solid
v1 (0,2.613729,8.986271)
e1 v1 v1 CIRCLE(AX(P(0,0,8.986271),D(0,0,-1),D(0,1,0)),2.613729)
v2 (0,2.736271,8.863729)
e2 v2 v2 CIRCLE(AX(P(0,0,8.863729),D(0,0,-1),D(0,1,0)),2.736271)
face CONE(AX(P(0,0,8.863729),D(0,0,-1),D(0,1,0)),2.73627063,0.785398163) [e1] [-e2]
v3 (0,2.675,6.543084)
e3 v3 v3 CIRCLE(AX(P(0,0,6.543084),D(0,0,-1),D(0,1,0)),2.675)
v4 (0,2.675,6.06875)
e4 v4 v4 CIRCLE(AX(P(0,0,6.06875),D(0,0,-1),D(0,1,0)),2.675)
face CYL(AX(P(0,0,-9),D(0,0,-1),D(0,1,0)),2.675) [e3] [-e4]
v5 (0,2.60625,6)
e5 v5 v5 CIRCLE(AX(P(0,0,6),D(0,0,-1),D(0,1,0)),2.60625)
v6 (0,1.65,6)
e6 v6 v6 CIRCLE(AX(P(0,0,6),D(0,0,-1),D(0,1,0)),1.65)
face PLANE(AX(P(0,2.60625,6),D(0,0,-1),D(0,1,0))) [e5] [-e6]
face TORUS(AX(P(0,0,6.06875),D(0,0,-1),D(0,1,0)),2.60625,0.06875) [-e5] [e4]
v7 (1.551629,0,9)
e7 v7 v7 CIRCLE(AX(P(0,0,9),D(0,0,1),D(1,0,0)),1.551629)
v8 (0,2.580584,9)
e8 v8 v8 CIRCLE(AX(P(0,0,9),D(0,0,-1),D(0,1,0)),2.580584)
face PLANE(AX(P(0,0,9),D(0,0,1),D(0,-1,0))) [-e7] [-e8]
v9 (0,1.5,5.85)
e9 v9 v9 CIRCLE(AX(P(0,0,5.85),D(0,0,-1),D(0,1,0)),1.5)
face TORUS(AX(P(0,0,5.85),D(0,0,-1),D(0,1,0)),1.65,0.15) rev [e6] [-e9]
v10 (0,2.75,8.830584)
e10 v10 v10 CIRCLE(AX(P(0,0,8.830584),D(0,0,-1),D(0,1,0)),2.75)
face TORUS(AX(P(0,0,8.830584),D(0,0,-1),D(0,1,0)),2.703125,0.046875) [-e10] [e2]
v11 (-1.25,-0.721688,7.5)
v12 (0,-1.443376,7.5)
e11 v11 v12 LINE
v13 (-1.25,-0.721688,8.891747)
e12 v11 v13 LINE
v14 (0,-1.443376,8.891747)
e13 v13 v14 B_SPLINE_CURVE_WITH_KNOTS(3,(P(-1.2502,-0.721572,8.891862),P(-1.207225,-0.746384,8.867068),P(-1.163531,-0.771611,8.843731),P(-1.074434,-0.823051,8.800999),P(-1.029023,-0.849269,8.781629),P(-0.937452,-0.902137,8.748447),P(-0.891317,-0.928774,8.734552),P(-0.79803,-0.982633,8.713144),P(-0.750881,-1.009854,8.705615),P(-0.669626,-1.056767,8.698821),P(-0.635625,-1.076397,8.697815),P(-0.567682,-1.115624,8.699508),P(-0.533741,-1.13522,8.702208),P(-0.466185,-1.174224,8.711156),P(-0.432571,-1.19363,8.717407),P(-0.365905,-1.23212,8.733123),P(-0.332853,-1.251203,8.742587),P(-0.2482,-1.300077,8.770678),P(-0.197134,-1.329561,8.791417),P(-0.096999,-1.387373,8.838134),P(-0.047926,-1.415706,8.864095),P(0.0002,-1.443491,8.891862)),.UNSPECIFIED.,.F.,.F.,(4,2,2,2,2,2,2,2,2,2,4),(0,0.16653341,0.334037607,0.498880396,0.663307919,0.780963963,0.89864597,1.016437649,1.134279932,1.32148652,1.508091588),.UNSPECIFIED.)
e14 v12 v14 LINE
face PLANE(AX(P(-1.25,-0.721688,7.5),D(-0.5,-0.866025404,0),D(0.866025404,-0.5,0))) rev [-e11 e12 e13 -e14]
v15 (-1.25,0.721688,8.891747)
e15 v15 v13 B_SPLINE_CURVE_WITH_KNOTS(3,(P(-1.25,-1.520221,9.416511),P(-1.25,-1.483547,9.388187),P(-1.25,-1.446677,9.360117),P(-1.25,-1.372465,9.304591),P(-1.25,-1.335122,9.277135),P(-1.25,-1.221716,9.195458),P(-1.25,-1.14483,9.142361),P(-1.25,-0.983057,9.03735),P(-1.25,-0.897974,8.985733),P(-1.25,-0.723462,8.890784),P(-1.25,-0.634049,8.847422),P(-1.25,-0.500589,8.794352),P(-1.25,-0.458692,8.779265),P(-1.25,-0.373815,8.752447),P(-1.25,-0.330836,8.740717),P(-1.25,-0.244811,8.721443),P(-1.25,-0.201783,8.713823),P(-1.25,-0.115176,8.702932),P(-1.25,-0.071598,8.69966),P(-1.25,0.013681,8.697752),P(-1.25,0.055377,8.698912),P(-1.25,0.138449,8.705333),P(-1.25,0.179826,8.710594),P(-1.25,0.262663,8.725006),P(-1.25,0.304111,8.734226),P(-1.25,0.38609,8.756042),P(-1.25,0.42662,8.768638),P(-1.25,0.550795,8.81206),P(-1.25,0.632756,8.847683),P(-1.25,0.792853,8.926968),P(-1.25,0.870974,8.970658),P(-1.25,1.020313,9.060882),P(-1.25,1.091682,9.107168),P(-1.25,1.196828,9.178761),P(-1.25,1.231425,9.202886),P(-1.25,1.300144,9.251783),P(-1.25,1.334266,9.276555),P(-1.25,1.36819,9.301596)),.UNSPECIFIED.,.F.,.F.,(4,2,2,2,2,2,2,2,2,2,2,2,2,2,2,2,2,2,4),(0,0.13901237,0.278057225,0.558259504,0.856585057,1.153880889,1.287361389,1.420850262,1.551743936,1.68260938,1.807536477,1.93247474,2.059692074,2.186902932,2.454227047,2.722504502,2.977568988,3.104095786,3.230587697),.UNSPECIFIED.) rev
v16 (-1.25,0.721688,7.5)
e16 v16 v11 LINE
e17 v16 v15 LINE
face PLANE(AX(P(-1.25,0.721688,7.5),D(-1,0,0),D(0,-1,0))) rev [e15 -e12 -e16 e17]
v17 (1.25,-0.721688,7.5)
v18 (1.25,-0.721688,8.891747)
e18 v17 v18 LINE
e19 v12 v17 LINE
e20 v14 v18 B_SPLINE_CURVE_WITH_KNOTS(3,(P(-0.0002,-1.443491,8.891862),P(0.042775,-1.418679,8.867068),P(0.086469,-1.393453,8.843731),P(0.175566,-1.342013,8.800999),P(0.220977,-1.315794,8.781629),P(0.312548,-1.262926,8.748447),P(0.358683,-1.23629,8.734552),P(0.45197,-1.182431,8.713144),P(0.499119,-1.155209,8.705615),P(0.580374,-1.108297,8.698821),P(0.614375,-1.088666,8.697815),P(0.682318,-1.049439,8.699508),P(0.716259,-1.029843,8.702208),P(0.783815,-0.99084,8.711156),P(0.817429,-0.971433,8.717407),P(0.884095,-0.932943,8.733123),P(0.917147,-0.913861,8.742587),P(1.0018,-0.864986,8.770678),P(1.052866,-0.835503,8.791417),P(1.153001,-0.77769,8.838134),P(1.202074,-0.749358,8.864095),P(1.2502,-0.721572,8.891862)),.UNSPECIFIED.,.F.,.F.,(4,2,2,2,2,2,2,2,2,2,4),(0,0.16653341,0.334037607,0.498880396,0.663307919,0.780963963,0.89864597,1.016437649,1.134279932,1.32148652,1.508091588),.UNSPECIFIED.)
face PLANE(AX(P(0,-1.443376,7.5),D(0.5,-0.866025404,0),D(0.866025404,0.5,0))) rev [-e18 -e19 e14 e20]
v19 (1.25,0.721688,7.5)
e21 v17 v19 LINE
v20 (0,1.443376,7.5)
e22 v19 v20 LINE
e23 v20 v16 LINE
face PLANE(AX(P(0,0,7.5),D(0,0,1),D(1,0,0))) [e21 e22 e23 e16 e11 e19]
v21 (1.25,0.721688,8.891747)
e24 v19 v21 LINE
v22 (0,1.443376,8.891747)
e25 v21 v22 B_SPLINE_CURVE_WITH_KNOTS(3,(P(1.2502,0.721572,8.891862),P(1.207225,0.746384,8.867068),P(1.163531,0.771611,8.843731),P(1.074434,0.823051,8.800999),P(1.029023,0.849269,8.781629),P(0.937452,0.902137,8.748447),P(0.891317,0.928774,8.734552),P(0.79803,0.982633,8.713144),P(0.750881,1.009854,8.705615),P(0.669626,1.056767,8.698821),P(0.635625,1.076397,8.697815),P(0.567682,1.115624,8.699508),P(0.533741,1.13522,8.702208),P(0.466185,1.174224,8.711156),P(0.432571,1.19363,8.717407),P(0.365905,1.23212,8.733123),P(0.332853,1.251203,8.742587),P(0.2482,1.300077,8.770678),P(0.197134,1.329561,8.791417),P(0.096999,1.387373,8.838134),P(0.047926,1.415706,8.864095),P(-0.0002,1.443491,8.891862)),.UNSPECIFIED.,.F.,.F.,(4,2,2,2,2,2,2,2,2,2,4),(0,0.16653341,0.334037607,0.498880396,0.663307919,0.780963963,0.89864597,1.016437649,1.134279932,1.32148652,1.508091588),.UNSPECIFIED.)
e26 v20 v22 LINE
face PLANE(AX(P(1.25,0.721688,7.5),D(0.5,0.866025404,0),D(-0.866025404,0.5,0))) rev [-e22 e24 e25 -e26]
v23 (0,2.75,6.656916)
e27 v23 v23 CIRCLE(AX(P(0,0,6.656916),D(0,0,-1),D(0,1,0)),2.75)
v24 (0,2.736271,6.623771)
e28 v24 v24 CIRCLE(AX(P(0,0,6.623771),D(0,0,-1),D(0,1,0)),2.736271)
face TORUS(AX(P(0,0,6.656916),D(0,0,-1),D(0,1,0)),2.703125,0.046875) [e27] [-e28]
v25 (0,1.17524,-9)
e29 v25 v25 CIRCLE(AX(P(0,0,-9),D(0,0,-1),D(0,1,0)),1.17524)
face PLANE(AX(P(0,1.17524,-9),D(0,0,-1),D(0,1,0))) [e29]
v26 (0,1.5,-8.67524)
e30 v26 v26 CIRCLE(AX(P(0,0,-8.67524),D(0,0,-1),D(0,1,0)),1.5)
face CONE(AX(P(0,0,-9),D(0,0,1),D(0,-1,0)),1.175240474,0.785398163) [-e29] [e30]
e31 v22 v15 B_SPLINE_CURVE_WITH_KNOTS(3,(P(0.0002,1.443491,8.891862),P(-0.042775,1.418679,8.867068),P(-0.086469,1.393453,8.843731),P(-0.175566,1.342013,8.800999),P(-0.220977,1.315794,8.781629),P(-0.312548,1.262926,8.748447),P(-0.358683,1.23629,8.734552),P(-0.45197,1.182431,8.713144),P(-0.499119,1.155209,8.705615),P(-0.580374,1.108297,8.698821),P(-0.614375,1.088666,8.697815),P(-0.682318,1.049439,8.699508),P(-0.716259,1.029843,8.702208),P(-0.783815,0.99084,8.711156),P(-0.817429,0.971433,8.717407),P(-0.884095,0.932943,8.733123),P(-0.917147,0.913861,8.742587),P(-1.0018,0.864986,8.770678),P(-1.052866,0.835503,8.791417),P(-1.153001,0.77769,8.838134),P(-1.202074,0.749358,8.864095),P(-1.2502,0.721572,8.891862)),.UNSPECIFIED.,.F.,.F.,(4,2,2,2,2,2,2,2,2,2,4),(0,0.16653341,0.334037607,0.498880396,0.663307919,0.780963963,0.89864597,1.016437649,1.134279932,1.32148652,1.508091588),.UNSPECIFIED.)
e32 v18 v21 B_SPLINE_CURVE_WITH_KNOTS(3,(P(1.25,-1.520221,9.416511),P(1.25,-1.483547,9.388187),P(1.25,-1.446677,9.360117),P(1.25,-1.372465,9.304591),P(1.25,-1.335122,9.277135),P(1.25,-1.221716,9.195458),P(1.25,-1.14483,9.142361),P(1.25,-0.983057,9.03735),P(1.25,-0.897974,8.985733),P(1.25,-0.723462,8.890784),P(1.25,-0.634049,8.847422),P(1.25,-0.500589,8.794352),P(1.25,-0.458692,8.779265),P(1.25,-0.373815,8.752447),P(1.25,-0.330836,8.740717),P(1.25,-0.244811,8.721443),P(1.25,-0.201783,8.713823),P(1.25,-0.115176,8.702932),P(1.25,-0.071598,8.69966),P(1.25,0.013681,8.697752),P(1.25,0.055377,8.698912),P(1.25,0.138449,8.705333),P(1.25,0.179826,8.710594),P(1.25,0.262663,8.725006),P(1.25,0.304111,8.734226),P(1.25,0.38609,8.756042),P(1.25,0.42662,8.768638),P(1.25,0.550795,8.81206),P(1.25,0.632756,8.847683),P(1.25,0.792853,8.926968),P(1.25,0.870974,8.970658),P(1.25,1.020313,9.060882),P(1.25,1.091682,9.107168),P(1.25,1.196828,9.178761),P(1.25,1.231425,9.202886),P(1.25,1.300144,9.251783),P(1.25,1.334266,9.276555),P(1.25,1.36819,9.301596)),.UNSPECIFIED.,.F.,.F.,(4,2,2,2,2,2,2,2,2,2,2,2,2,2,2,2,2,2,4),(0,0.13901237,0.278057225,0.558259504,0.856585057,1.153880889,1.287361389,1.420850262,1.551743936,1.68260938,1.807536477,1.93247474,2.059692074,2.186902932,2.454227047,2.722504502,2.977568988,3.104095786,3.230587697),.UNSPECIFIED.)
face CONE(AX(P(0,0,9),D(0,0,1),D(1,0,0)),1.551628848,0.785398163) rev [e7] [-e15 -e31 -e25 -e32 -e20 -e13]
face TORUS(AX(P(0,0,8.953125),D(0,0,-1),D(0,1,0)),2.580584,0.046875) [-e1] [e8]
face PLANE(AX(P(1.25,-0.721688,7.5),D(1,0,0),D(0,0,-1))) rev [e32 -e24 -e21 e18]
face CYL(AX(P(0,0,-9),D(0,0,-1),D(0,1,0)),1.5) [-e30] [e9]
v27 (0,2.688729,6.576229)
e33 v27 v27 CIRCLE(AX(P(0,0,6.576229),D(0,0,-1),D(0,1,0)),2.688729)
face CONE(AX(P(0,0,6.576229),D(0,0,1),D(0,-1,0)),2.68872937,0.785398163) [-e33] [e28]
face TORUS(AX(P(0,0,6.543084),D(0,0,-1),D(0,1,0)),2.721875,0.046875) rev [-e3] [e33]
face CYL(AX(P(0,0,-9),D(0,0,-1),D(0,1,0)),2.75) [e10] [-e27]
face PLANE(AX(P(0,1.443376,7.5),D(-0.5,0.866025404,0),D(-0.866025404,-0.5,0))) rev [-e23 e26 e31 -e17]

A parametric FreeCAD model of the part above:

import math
import FreeCAD as App
import Part
import Sketcher
Q = App.Units.Quantity


def add_polygon(sketch, points):
    """Adds a closed chain of lines whose ends are joined by coincident constraints."""
    first, n = sketch.GeometryCount, len(points)
    for a, b in zip(points, points[1:] + points[:1]):
        sketch.addGeometry(Part.LineSegment(App.Vector(*a, 0), App.Vector(*b, 0)), False)
    for i in range(n):
        sketch.addConstraint(Sketcher.Constraint("Coincident", first + i, 2, first + (i + 1) % n, 1))

doc = App.newDocument("Part")
body = doc.addObject("PartDesign::Body", "Body")

# Sketch on YZ plane
sketch1 = body.newObject("Sketcher::SketchObject", "Sketch")
sketch1.AttachmentSupport = (doc.getObject("YZ_Plane"), [""])
sketch1.MapMode = "FlatFace"
sketch1.addGeometry(Part.LineSegment(App.Vector(2.580584, 9, 0), App.Vector(0, 9, 0)), False)
sketch1.addGeometry(Part.LineSegment(App.Vector(0, 9, 0), App.Vector(0, -9, 0)), False)
sketch1.addGeometry(Part.LineSegment(App.Vector(0, -9, 0), App.Vector(1.17524, -9, 0)), False)
sketch1.addGeometry(Part.LineSegment(App.Vector(1.17524, -9, 0), App.Vector(1.5, -8.67524, 0)), False)
sketch1.addGeometry(Part.LineSegment(App.Vector(1.5, -8.67524, 0), App.Vector(1.5, 5.85, 0)), False)
sketch1.addGeometry(Part.ArcOfCircle(Part.Circle(App.Vector(1.65, 5.85, 0), App.Vector(0, 0, 1), 0.15), math.radians(90), math.radians(180)), False)
sketch1.addGeometry(Part.LineSegment(App.Vector(1.65, 6, 0), App.Vector(2.60625, 6, 0)), False)
sketch1.addGeometry(Part.ArcOfCircle(Part.Circle(App.Vector(2.60625, 6.06875, 0), App.Vector(0, 0, 1), 0.06875), math.radians(-89.999999), math.radians(-0.000001)), False)
sketch1.addGeometry(Part.LineSegment(App.Vector(2.675, 6.06875, 0), App.Vector(2.675, 6.543084, 0)), False)
sketch1.addGeometry(Part.ArcOfCircle(Part.Circle(App.Vector(2.721875, 6.543084, 0), App.Vector(0, 0, 1), 0.046875), math.radians(135.000001), math.radians(180)), False)
sketch1.addGeometry(Part.LineSegment(App.Vector(2.688729, 6.576229, 0), App.Vector(2.736271, 6.623771, 0)), False)
sketch1.addGeometry(Part.ArcOfCircle(Part.Circle(App.Vector(2.703125, 6.656916, 0), App.Vector(0, 0, 1), 0.046875), math.radians(-44.999999), math.radians(0)), False)
sketch1.addGeometry(Part.LineSegment(App.Vector(2.75, 6.656916, 0), App.Vector(2.75, 8.830584, 0)), False)
sketch1.addGeometry(Part.ArcOfCircle(Part.Circle(App.Vector(2.703125, 8.830584, 0), App.Vector(0, 0, 1), 0.046875), math.radians(0), math.radians(44.999999)), False)
sketch1.addGeometry(Part.LineSegment(App.Vector(2.736271, 8.863729, 0), App.Vector(2.613729, 8.986271, 0)), False)
sketch1.addGeometry(Part.ArcOfCircle(Part.Circle(App.Vector(2.580584, 8.953125, 0), App.Vector(0, 0, 1), 0.046875), math.radians(45.000001), math.radians(90)), False)
sketch1.addConstraint(Sketcher.Constraint("Coincident", 0, 2, 1, 1))
sketch1.addConstraint(Sketcher.Constraint("Coincident", 1, 2, 2, 1))
sketch1.addConstraint(Sketcher.Constraint("Coincident", 2, 2, 3, 1))
sketch1.addConstraint(Sketcher.Constraint("Coincident", 3, 2, 4, 1))
sketch1.addConstraint(Sketcher.Constraint("Tangent", 4, 2, 5, 2))
sketch1.addConstraint(Sketcher.Constraint("Tangent", 5, 1, 6, 1))
sketch1.addConstraint(Sketcher.Constraint("Tangent", 6, 2, 7, 1))
sketch1.addConstraint(Sketcher.Constraint("Tangent", 7, 2, 8, 1))
sketch1.addConstraint(Sketcher.Constraint("Tangent", 8, 2, 9, 2))
sketch1.addConstraint(Sketcher.Constraint("Tangent", 9, 1, 10, 1))
sketch1.addConstraint(Sketcher.Constraint("Tangent", 10, 2, 11, 1))
sketch1.addConstraint(Sketcher.Constraint("Tangent", 11, 2, 12, 1))
sketch1.addConstraint(Sketcher.Constraint("Tangent", 12, 2, 13, 1))
sketch1.addConstraint(Sketcher.Constraint("Tangent", 13, 2, 14, 1))
sketch1.addConstraint(Sketcher.Constraint("Tangent", 14, 2, 15, 1))
sketch1.addConstraint(Sketcher.Constraint("Tangent", 15, 2, 0, 1))
sketch1.addConstraint(Sketcher.Constraint("Horizontal", 0))
sketch1.addConstraint(Sketcher.Constraint("Vertical", 1))
sketch1.addConstraint(Sketcher.Constraint("Horizontal", 2))
sketch1.addConstraint(Sketcher.Constraint("Vertical", 4))
sketch1.addConstraint(Sketcher.Constraint("Horizontal", 6))
sketch1.addConstraint(Sketcher.Constraint("Vertical", 8))
sketch1.addConstraint(Sketcher.Constraint("Vertical", 12))
sketch1.addConstraint(Sketcher.Constraint("Equal", 9, 11))
sketch1.addConstraint(Sketcher.Constraint("Equal", 11, 13))
sketch1.addConstraint(Sketcher.Constraint("Equal", 13, 15))
sketch1.addConstraint(Sketcher.Constraint("Symmetric", 0, 2, 1, 2, -1, 1))
sketch1.addConstraint(Sketcher.Constraint("Parallel", 3, 10))
sketch1.addConstraint(Sketcher.Constraint("Perpendicular", 10, 14))
sketch1.addConstraint(Sketcher.Constraint("Vertical", 10, 2, 13, 2))
sketch1.addConstraint(Sketcher.Constraint("DistanceY", 1, 2, 1, 1, Q("18 mm")))
sketch1.addConstraint(Sketcher.Constraint("Radius", 5, Q("0.15 mm")))
sketch1.addConstraint(Sketcher.Constraint("DistanceY", -1, 1, 5, 1, Q("6 mm")))
sketch1.addConstraint(Sketcher.Constraint("DistanceX", -1, 1, 3, 2, Q("1.5 mm")))
sketch1.addConstraint(Sketcher.Constraint("DistanceX", -1, 1, 11, 2, Q("2.75 mm")))
sketch1.addConstraint(Sketcher.Constraint("Radius", 7, Q("0.06875 mm")))
sketch1.addConstraint(Sketcher.Constraint("DistanceX", -1, 1, 7, 2, Q("2.675 mm")))
sketch1.addConstraint(Sketcher.Constraint("Radius", 9, Q("0.046875 mm")))
sketch1.addConstraint(Sketcher.Constraint("Distance", 14, Q("0.1733 mm")))
sketch1.addConstraint(Sketcher.Constraint("DistanceX", 2, 1, 2, 2, Q("1.17524 mm")))
sketch1.addConstraint(Sketcher.Constraint("DistanceY", 9, 3, 13, 3, Q("2.2875 mm")))
revolution = body.newObject("PartDesign::Revolution", "Revolution")
revolution.Profile = sketch1
revolution.ReferenceAxis = (sketch1, ["V_Axis"])
revolution.Angle = 360

# Sketch on XY plane
sketch2 = body.newObject("Sketcher::SketchObject", "Sketch001")
sketch2.AttachmentSupport = (doc.getObject("XY_Plane"), [""])
sketch2.MapMode = "FlatFace"
sketch2.AttachmentOffset = App.Placement(App.Vector(0, 0, 7.5), App.Rotation())
add_polygon(sketch2, [(1.25, -0.721688), (1.25, 0.721688), (0, 1.443376), (-1.25, 0.721688), (-1.25, -0.721688), (0, -1.443376)])  # lines 0-5
sketch2.addConstraint(Sketcher.Constraint("Vertical", 0))
sketch2.addConstraint(Sketcher.Constraint("Vertical", 3))
sketch2.addConstraint(Sketcher.Constraint("Symmetric", 0, 2, 3, 2, -1, 1))
sketch2.addConstraint(Sketcher.Constraint("Symmetric", 1, 2, 4, 2, -1, 1))
sketch2.addConstraint(Sketcher.Constraint("PointOnObject", 1, 2, -2))
sketch2.addConstraint(Sketcher.Constraint("Parallel", 2, 5))
sketch2.addConstraint(Sketcher.Constraint("Horizontal", 0, 2, 2, 2))
sketch2.addConstraint(Sketcher.Constraint("Angle", 1, Q("150 deg")))
sketch2.addConstraint(Sketcher.Constraint("DistanceX", 2, 2, 0, 2, Q("2.5 mm")))
sketch2.addConstraint(Sketcher.Constraint("DistanceY", 0, 1, 0, 2, Q("1.443376 mm")))
pocket1 = body.newObject("PartDesign::Pocket", "Pocket")
pocket1.Profile = sketch2
pocket1.Length = 1.5
pocket1.Reversed = True

# Sketch on XY plane
sketch3 = body.newObject("Sketcher::SketchObject", "Sketch002")
sketch3.AttachmentSupport = (doc.getObject("XY_Plane"), [""])
sketch3.MapMode = "FlatFace"
sketch3.AttachmentOffset = App.Placement(App.Vector(0, 0, 9), App.Rotation())
sketch3.addGeometry(Part.Circle(App.Vector(0, 0, 0), App.Vector(0, 0, 1), 1.551629), False)
sketch3.addConstraint(Sketcher.Constraint("Coincident", 0, 3, -1, 1))
sketch3.addConstraint(Sketcher.Constraint("Diameter", 0, Q("3.103258 mm")))
pocket2 = body.newObject("PartDesign::Pocket", "Pocket001")
pocket2.Profile = sketch3
pocket2.Length = 1.5
pocket2.TaperAngle = -45

doc.recompute()
